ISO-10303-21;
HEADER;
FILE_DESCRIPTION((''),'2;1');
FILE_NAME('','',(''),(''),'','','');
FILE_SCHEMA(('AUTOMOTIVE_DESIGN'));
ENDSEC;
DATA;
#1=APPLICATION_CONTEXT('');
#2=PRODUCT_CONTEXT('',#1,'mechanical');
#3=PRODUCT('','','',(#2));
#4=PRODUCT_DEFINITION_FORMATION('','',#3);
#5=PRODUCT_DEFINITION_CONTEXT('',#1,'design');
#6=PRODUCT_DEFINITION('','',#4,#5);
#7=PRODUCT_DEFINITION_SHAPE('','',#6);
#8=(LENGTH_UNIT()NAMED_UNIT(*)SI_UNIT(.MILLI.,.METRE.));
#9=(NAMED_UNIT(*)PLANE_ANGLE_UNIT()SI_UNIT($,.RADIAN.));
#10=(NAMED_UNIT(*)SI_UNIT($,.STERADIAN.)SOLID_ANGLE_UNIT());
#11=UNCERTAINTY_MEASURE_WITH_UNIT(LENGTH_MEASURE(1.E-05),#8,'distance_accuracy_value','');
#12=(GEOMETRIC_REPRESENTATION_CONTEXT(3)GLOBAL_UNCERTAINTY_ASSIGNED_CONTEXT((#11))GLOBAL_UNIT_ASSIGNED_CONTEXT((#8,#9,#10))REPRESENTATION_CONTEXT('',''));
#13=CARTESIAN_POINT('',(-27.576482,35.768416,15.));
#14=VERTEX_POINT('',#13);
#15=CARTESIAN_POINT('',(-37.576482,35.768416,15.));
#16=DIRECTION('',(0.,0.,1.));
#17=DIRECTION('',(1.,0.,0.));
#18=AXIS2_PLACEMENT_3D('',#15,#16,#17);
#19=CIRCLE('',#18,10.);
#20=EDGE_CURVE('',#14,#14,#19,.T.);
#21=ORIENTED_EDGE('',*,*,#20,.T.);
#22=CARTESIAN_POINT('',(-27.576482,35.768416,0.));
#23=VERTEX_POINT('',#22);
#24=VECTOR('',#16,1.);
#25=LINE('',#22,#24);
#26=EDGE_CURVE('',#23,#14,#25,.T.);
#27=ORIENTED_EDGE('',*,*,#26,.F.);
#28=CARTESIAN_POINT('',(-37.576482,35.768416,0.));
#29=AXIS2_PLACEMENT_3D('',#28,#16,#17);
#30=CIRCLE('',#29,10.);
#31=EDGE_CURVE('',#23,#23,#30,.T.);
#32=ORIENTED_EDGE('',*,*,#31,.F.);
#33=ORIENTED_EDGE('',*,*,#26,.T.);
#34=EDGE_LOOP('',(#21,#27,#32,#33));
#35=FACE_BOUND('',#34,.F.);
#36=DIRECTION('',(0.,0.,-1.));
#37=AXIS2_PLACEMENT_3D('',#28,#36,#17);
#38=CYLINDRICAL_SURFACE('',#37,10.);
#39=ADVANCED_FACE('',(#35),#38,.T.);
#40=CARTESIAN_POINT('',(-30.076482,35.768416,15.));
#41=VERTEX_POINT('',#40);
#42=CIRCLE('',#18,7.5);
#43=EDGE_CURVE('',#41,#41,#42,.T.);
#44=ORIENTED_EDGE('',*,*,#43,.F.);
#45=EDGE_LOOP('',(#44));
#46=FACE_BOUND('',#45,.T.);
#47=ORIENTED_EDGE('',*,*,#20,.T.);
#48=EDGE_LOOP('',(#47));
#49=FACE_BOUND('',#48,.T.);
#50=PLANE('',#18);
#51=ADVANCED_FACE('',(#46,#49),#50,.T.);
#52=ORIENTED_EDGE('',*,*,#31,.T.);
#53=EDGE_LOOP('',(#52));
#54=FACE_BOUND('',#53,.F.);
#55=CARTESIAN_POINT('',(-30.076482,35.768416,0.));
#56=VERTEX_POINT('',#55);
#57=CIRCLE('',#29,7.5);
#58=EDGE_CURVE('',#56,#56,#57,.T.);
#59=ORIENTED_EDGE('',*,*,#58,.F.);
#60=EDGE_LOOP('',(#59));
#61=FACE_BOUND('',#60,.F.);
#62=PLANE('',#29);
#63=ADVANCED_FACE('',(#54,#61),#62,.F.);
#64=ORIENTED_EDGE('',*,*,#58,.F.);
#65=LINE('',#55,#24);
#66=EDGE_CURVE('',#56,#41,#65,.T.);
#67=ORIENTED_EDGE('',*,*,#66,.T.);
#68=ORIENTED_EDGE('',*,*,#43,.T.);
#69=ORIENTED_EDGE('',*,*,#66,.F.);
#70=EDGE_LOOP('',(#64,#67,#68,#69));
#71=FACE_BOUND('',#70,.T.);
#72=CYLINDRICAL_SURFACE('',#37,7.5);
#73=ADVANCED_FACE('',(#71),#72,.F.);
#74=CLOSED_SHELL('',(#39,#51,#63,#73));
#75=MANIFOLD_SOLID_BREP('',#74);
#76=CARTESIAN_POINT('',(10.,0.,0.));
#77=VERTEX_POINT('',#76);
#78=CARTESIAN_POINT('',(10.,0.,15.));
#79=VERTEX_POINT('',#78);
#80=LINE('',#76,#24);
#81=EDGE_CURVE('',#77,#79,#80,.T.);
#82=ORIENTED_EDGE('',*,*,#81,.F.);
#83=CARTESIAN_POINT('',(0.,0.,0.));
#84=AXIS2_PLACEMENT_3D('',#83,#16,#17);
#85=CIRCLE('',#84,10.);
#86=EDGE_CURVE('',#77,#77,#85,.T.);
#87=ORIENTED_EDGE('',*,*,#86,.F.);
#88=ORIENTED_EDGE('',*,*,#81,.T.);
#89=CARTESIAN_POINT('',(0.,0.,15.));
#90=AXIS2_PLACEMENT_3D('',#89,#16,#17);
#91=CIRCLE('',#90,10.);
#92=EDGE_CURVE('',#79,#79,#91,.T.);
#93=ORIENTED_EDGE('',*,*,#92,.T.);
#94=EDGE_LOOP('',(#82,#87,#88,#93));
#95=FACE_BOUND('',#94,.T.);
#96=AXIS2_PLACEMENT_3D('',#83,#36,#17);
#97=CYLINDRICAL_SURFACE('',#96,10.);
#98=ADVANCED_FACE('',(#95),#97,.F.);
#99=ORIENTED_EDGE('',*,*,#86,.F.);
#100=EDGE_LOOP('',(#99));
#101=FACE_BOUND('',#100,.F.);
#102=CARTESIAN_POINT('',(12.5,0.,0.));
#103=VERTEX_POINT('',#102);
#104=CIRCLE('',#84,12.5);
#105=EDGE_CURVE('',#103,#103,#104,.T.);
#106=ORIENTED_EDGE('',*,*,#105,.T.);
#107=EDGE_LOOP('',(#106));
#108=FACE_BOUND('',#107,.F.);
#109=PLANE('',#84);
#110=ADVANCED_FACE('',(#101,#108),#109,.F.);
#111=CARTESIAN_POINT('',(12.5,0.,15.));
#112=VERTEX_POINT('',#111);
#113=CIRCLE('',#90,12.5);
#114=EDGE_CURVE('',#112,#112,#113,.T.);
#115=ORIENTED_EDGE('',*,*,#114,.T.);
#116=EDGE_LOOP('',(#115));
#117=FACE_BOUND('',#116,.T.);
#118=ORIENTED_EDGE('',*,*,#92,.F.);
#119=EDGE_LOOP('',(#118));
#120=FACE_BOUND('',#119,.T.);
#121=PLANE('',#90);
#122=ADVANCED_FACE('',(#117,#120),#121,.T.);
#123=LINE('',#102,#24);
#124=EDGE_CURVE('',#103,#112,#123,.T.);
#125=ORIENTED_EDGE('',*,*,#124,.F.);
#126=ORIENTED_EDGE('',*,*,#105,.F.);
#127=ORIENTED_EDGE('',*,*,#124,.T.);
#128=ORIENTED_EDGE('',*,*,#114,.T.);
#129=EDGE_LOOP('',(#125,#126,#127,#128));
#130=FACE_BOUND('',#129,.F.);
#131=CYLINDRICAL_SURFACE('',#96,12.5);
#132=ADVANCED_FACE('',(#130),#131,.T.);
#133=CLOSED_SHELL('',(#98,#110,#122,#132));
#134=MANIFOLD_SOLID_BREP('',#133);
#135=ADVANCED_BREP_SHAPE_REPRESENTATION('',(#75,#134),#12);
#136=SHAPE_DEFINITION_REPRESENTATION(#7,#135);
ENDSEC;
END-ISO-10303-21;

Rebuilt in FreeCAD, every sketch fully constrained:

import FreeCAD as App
import Part
import Sketcher

V = App.Vector
Q = App.Units.Quantity

doc = App.newDocument("Part")
body = doc.addObject("PartDesign::Body", "Body")
body.AllowCompound = True

# Sketch on XY plane
sketch1 = body.newObject("Sketcher::SketchObject", "Sketch")
sketch1.AttachmentSupport = (doc.getObject("XY_Plane"), [""])
sketch1.MapMode = "FlatFace"
sketch1.addGeometry(Part.Circle(V(0, 0, 0), V(0, 0, 1), 12), False)
sketch1.addGeometry(Part.Circle(V(0, 0, 0), V(0, 0, 1), 10), False)
sketch1.addGeometry(Part.Circle(V(-38, 36, 0), V(0, 0, 1), 10), False)
sketch1.addGeometry(Part.Circle(V(-38, 36, 0), V(0, 0, 1), 8), False)
sketch1.addConstraint(Sketcher.Constraint("Coincident", 0, 3, -1, 1))
sketch1.addConstraint(Sketcher.Constraint("Coincident", 1, 3, -1, 1))
sketch1.addConstraint(Sketcher.Constraint("Coincident", 3, 3, 2, 3))
sketch1.addConstraint(Sketcher.Constraint("Equal", 1, 2))
sketch1.addConstraint(Sketcher.Constraint("Diameter", 0, Q("25 mm")))
sketch1.addConstraint(Sketcher.Constraint("Diameter", 1, Q("20 mm")))
sketch1.addConstraint(Sketcher.Constraint("Diameter", 3, Q("15 mm")))
sketch1.addConstraint(Sketcher.Constraint("DistanceX", 2, 3, -1, 1, Q("37.576482 mm")))
sketch1.addConstraint(Sketcher.Constraint("DistanceY", -1, 1, 2, 3, Q("35.768416 mm")))
pad1 = body.newObject("PartDesign::Pad", "Pad")
pad1.Profile = sketch1
pad1.Length = 15

doc.recompute()
